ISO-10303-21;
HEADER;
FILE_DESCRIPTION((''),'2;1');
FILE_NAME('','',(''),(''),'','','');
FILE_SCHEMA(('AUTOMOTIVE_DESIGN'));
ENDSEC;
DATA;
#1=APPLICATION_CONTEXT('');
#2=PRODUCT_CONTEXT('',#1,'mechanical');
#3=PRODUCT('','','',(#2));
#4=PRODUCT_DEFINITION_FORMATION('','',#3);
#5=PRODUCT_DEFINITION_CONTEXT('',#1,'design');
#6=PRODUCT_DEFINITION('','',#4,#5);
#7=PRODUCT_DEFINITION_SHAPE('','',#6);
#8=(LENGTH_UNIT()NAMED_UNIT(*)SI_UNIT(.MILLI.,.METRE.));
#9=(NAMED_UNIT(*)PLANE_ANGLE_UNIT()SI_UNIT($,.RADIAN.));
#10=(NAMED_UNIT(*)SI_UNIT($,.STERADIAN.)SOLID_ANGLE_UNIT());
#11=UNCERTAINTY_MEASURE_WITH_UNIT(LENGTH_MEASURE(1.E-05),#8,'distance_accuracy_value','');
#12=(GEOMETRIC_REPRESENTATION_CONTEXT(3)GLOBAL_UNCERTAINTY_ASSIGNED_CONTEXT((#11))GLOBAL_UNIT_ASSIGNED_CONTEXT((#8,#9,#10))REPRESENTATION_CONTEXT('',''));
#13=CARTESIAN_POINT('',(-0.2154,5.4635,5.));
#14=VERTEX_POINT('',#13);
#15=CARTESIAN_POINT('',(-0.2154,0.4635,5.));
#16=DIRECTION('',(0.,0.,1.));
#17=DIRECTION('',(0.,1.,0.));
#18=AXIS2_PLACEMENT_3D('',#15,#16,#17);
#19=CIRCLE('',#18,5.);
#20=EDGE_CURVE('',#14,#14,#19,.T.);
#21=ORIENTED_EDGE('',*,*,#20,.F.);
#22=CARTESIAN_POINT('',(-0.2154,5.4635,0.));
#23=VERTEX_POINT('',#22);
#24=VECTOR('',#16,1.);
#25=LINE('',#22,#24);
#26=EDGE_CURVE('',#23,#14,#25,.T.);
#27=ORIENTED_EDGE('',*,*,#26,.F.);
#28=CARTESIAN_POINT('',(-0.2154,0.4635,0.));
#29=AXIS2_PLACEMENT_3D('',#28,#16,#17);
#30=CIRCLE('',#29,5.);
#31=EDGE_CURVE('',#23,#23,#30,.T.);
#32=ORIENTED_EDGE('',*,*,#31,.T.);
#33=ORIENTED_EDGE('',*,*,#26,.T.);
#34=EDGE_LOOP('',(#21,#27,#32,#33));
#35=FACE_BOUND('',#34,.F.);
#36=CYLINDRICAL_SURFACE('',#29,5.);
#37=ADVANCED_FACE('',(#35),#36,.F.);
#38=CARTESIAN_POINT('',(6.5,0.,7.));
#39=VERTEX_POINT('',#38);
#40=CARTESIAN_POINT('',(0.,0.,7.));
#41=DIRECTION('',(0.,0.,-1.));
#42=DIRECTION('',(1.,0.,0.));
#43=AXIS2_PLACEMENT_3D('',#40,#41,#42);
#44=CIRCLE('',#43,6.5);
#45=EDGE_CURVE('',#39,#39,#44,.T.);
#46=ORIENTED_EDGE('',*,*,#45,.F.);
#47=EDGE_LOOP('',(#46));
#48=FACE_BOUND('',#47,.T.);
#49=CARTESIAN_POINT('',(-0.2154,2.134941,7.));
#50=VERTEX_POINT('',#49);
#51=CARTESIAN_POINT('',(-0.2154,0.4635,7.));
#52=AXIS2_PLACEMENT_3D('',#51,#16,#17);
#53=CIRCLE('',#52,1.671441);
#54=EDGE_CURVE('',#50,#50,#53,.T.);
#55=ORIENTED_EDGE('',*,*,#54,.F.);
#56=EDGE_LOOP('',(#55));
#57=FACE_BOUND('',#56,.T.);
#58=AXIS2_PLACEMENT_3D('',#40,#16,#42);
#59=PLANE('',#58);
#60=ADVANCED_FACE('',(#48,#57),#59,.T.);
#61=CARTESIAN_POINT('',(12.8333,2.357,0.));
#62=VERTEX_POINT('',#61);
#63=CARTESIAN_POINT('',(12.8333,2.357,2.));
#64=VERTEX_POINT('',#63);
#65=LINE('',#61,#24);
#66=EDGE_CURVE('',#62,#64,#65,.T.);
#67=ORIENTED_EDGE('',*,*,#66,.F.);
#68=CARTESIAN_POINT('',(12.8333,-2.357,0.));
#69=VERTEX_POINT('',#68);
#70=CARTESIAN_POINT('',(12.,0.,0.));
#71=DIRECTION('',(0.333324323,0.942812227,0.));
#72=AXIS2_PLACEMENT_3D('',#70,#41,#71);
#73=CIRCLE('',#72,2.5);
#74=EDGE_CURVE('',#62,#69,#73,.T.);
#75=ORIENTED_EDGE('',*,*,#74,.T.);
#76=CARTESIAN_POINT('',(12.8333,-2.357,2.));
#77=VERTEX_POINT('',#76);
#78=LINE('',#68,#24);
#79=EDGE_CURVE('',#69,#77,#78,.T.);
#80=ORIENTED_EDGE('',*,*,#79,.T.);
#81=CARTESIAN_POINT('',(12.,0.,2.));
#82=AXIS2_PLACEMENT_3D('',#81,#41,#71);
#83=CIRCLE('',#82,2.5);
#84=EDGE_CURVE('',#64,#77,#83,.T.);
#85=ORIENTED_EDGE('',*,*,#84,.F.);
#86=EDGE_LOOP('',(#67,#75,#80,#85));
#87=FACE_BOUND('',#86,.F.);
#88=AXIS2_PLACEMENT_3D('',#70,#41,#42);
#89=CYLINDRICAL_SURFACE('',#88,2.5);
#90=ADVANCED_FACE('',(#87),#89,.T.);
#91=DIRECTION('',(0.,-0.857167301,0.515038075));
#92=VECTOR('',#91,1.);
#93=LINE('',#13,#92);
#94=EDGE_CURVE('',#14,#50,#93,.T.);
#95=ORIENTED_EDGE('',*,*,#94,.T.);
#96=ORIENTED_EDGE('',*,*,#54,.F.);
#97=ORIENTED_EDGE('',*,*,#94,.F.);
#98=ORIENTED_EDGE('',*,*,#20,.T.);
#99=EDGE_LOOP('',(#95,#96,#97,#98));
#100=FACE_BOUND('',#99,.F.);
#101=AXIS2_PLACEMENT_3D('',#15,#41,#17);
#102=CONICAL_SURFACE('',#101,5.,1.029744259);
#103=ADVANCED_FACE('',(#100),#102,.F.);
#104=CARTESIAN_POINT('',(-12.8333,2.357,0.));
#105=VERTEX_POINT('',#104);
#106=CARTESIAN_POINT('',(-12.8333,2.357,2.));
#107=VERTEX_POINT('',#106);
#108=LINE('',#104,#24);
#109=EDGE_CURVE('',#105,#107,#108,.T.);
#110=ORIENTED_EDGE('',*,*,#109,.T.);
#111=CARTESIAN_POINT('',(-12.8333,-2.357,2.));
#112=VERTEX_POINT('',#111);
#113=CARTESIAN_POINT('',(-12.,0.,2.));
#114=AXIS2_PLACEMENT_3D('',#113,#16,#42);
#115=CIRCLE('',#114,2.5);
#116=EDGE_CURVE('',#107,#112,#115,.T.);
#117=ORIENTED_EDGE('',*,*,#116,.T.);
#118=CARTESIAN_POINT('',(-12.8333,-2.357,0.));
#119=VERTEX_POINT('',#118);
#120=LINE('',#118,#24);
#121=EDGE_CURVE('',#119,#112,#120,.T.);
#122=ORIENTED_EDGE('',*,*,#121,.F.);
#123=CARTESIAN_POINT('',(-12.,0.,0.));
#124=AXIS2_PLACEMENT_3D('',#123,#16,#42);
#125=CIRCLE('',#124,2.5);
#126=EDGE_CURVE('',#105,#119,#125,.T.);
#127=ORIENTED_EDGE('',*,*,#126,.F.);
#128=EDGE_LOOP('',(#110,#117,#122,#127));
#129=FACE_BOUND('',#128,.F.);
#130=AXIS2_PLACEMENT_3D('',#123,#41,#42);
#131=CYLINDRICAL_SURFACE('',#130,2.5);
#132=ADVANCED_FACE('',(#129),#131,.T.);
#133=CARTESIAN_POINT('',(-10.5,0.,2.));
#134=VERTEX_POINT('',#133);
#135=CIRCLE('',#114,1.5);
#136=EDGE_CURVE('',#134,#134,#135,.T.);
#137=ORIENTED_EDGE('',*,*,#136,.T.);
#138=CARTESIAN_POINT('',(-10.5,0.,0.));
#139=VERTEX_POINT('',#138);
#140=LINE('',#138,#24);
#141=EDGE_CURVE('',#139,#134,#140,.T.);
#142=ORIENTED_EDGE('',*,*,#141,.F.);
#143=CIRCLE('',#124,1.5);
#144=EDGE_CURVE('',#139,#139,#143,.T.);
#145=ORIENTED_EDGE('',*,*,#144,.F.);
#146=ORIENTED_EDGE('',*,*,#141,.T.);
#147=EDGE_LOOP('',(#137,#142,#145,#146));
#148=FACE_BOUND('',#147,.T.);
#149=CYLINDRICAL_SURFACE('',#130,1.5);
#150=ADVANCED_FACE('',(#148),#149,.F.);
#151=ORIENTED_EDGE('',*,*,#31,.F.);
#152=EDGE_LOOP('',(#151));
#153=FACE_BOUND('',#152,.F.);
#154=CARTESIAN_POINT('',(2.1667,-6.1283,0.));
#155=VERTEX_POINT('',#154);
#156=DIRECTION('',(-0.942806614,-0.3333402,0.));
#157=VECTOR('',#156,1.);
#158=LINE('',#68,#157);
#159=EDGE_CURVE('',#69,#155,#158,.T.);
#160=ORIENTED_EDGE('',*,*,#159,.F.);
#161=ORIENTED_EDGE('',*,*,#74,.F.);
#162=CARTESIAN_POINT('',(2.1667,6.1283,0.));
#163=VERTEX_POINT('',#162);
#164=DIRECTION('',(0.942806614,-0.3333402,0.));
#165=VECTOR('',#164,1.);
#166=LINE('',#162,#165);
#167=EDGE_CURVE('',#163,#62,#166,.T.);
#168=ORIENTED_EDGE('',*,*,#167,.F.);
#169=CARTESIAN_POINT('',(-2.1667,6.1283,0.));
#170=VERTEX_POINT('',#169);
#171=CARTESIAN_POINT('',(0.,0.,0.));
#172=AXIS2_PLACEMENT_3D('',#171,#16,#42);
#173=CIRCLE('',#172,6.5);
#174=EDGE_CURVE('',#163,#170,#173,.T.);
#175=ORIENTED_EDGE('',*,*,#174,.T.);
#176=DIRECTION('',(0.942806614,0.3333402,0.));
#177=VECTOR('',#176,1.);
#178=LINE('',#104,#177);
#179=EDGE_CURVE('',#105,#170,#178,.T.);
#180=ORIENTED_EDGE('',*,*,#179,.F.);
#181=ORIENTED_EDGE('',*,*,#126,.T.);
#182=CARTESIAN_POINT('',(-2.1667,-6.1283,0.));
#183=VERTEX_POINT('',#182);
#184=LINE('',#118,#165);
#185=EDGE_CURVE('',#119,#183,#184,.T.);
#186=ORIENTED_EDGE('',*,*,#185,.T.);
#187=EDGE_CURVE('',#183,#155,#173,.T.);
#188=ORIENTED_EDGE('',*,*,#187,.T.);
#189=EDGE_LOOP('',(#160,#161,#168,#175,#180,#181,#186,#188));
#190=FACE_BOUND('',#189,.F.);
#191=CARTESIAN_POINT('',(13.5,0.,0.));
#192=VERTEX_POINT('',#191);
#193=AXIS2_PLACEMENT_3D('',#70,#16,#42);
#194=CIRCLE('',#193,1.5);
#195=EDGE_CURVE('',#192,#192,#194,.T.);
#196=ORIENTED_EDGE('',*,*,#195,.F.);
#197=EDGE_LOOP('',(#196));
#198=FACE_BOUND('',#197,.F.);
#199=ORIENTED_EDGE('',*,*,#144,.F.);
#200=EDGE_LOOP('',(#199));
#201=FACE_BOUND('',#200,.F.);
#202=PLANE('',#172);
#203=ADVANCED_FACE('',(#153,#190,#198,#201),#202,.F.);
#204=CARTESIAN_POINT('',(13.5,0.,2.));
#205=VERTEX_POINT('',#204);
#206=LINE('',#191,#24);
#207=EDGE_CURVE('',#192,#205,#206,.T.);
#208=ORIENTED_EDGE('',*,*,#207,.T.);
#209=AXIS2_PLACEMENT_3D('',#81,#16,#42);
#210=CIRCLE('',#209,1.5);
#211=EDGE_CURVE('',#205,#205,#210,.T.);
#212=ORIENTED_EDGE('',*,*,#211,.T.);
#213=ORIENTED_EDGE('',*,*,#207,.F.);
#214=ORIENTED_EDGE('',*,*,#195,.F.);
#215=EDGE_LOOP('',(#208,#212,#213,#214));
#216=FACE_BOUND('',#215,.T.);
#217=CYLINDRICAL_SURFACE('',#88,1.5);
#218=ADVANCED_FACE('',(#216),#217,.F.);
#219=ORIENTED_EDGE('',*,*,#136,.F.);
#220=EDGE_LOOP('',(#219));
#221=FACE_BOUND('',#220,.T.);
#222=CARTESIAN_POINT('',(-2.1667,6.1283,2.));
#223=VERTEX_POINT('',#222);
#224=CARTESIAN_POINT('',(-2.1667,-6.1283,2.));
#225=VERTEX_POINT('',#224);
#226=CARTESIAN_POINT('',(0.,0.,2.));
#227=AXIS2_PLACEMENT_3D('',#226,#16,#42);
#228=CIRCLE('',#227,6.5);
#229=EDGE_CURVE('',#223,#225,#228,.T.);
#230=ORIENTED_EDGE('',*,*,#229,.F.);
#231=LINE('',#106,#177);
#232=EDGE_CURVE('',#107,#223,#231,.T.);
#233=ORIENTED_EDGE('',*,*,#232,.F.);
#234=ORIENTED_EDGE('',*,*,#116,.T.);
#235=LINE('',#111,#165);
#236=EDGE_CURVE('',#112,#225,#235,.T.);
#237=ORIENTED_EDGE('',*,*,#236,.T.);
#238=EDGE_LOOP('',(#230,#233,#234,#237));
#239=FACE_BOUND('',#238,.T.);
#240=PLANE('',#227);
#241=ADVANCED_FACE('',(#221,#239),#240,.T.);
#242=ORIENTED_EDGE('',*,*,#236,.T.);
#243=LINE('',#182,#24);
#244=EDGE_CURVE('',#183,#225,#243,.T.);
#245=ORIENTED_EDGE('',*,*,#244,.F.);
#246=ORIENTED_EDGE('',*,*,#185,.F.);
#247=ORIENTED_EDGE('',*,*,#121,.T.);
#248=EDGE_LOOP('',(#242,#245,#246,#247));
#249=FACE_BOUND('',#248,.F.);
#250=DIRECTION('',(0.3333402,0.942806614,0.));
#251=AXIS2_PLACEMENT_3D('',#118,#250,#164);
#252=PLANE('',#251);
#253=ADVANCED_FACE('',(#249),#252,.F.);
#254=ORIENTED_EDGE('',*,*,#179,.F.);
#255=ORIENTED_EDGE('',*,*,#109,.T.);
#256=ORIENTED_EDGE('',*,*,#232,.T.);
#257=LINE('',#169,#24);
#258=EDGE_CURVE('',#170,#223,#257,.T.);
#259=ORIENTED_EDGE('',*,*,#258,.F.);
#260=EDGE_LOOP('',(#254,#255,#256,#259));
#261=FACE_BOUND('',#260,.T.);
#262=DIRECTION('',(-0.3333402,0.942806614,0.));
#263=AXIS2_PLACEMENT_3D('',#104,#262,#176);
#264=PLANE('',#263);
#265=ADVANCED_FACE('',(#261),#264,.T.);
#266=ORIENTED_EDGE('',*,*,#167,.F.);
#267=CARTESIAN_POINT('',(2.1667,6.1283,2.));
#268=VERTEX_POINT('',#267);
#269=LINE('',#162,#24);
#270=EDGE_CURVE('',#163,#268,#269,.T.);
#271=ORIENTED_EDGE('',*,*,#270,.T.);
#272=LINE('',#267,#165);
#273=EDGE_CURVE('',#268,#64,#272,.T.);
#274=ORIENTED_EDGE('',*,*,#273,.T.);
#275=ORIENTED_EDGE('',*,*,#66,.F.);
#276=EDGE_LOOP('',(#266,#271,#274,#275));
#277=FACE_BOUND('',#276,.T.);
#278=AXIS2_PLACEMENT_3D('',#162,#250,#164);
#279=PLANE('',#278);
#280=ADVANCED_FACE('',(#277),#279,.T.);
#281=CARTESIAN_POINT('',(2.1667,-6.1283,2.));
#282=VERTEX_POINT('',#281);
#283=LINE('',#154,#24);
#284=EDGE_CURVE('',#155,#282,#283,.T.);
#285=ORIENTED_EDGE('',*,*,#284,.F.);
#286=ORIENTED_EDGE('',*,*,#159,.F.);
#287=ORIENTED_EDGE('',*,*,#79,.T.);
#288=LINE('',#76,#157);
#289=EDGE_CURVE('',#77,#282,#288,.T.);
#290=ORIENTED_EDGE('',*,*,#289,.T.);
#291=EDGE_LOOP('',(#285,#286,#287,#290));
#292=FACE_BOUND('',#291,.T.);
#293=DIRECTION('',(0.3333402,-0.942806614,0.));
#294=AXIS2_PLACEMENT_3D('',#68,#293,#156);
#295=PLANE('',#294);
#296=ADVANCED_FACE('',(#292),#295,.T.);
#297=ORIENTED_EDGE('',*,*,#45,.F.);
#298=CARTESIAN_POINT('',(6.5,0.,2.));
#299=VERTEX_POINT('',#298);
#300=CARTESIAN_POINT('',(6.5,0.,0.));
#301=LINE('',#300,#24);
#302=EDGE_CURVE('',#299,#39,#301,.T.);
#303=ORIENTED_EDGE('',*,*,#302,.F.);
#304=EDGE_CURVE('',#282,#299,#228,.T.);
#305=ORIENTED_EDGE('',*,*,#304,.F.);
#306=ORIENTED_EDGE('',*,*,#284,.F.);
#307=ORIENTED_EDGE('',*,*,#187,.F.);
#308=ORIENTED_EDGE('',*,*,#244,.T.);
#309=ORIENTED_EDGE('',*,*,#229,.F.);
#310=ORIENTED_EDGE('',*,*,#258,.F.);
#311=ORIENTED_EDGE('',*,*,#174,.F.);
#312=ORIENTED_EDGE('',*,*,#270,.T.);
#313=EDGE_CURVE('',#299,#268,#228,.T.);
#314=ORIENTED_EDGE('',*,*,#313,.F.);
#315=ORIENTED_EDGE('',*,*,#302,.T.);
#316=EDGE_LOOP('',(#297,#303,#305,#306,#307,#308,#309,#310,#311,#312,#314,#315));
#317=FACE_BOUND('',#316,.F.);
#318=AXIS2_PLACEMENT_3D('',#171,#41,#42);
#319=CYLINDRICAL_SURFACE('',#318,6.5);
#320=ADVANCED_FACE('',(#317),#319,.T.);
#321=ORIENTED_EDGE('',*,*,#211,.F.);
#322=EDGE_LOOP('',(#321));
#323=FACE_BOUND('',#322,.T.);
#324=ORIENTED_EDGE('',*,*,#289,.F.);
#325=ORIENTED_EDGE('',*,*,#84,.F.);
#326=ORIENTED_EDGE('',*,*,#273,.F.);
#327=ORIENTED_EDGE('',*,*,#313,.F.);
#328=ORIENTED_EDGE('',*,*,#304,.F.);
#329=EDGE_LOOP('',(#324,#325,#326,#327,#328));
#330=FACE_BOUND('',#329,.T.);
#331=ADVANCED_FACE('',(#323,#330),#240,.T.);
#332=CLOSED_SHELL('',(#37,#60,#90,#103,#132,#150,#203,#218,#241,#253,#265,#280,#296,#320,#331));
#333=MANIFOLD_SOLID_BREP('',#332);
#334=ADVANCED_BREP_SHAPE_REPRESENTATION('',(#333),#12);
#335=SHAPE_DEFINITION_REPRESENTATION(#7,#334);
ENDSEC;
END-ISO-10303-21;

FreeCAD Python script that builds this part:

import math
import FreeCAD as App
import Part
import Sketcher
from FreeCAD import Vector
Q = App.Units.Quantity

doc = App.newDocument("Part")
body = doc.addObject("PartDesign::Body", "Body")

# Sketch on XY plane
sketch1 = body.newObject("Sketcher::SketchObject", "Sketch")
sketch1.AttachmentSupport = (doc.getObject("XY_Plane"), [""])
sketch1.MapMode = "FlatFace"
sketch1.addGeometry(Part.Circle(Vector(0, 0, 0), Vector(0, 0, 1), 6.5), False)
sketch1.addConstraint([
    Sketcher.Constraint("Coincident", 0, 3, -1, 1),
    Sketcher.Constraint("Diameter", 0, Q("13 mm")),
])
pad1 = body.newObject("PartDesign::Pad", "Pad")
pad1.Profile = sketch1
pad1.Length = 7

# Sketch on XY plane
sketch2 = body.newObject("Sketcher::SketchObject", "Sketch001")
sketch2.AttachmentSupport = (doc.getObject("XY_Plane"), [""])
sketch2.MapMode = "FlatFace"
sketch2.addGeometry([
    Part.ArcOfCircle(Part.Circle(Vector(0, 0, 0), Vector(0, 0, 1), 6.5), math.radians(-109.471377), math.radians(-70.528623)),  # 0
    Part.LineSegment(Vector(2.1667, -6.1283, 0), Vector(12.8333, -2.357, 0)),  # 1
    Part.ArcOfCircle(Part.Circle(Vector(12, 0, 0), Vector(0, 0, 1), 2.5), math.radians(-70.529327), math.radians(70.529327)),  # 2
    Part.LineSegment(Vector(12.8333, 2.357, 0), Vector(2.1667, 6.1283, 0)),  # 3
    Part.ArcOfCircle(Part.Circle(Vector(0, 0, 0), Vector(0, 0, 1), 6.5), math.radians(70.528623), math.radians(109.471377)),  # 4
    Part.LineSegment(Vector(-2.1667, 6.1283, 0), Vector(-12.8333, 2.357, 0)),  # 5
    Part.ArcOfCircle(Part.Circle(Vector(-12, 0, 0), Vector(0, 0, 1), 2.5), math.radians(109.470673), math.radians(250.529327)),  # 6
    Part.LineSegment(Vector(-12.8333, -2.357, 0), Vector(-2.1667, -6.1283, 0)),  # 7
    Part.Circle(Vector(12, 0, 0), Vector(0, 0, 1), 1.5),  # 8
    Part.Circle(Vector(-12, 0, 0), Vector(0, 0, 1), 1.5),  # 9
], False)
sketch2.addConstraint([
    Sketcher.Constraint("Tangent", 0, 2, 1, 1),
    Sketcher.Constraint("Tangent", 1, 2, 2, 1),
    Sketcher.Constraint("Tangent", 2, 2, 3, 1),
    Sketcher.Constraint("Tangent", 3, 2, 4, 1),
    Sketcher.Constraint("Tangent", 4, 2, 5, 1),
    Sketcher.Constraint("Tangent", 5, 2, 6, 1),
    Sketcher.Constraint("Tangent", 6, 2, 7, 1),
    Sketcher.Constraint("Tangent", 7, 2, 0, 1),
    Sketcher.Constraint("Coincident", 0, 3, -1, 1),
    Sketcher.Constraint("Coincident", 4, 3, -1, 1),
    Sketcher.Constraint("Coincident", 8, 3, 2, 3),
    Sketcher.Constraint("Coincident", 9, 3, 6, 3),
    Sketcher.Constraint("Equal", 0, 4),
    Sketcher.Constraint("Equal", 2, 6),
    Sketcher.Constraint("Equal", 8, 9),
    Sketcher.Constraint("Symmetric", 2, 3, 6, 3, -1, 1),
    Sketcher.Constraint("PointOnObject", 2, 3, -1),
    Sketcher.Constraint("Diameter", 8, Q("3 mm")),
    Sketcher.Constraint("Radius", 0, Q("6.5 mm")),
    Sketcher.Constraint("Radius", 2, Q("2.5 mm")),
    Sketcher.Constraint("DistanceX", -1, 1, 2, 3, Q("12 mm")),
])
pad2 = body.newObject("PartDesign::Pad", "Pad001")
pad2.Profile = sketch2
pad2.Length = 2

# Sketch on XY plane
sketch3 = body.newObject("Sketcher::SketchObject", "Sketch002")
sketch3.AttachmentSupport = (doc.getObject("XY_Plane"), [""])
sketch3.MapMode = "FlatFace"
sketch3.addGeometry(Part.Circle(Vector(-0.2154, 0.4635, 0), Vector(0, 0, 1), 5), False)
sketch3.addConstraint([
    Sketcher.Constraint("Diameter", 0, Q("10 mm")),
    Sketcher.Constraint("DistanceX", 0, 3, -1, 1, Q("0.2154 mm")),
    Sketcher.Constraint("DistanceY", -1, 1, 0, 3, Q("0.4635 mm")),
])
doc.recompute()
hole = body.newObject("PartDesign::Hole", "Hole")
hole.Profile = sketch3
hole.ThreadType = "None"
hole.Diameter = 10
hole.DepthType = "Dimension"
hole.Depth = 5
hole.DrillPoint = "Angled"
hole.DrillPointAngle = 118
hole.Reversed = True

doc.recompute()
